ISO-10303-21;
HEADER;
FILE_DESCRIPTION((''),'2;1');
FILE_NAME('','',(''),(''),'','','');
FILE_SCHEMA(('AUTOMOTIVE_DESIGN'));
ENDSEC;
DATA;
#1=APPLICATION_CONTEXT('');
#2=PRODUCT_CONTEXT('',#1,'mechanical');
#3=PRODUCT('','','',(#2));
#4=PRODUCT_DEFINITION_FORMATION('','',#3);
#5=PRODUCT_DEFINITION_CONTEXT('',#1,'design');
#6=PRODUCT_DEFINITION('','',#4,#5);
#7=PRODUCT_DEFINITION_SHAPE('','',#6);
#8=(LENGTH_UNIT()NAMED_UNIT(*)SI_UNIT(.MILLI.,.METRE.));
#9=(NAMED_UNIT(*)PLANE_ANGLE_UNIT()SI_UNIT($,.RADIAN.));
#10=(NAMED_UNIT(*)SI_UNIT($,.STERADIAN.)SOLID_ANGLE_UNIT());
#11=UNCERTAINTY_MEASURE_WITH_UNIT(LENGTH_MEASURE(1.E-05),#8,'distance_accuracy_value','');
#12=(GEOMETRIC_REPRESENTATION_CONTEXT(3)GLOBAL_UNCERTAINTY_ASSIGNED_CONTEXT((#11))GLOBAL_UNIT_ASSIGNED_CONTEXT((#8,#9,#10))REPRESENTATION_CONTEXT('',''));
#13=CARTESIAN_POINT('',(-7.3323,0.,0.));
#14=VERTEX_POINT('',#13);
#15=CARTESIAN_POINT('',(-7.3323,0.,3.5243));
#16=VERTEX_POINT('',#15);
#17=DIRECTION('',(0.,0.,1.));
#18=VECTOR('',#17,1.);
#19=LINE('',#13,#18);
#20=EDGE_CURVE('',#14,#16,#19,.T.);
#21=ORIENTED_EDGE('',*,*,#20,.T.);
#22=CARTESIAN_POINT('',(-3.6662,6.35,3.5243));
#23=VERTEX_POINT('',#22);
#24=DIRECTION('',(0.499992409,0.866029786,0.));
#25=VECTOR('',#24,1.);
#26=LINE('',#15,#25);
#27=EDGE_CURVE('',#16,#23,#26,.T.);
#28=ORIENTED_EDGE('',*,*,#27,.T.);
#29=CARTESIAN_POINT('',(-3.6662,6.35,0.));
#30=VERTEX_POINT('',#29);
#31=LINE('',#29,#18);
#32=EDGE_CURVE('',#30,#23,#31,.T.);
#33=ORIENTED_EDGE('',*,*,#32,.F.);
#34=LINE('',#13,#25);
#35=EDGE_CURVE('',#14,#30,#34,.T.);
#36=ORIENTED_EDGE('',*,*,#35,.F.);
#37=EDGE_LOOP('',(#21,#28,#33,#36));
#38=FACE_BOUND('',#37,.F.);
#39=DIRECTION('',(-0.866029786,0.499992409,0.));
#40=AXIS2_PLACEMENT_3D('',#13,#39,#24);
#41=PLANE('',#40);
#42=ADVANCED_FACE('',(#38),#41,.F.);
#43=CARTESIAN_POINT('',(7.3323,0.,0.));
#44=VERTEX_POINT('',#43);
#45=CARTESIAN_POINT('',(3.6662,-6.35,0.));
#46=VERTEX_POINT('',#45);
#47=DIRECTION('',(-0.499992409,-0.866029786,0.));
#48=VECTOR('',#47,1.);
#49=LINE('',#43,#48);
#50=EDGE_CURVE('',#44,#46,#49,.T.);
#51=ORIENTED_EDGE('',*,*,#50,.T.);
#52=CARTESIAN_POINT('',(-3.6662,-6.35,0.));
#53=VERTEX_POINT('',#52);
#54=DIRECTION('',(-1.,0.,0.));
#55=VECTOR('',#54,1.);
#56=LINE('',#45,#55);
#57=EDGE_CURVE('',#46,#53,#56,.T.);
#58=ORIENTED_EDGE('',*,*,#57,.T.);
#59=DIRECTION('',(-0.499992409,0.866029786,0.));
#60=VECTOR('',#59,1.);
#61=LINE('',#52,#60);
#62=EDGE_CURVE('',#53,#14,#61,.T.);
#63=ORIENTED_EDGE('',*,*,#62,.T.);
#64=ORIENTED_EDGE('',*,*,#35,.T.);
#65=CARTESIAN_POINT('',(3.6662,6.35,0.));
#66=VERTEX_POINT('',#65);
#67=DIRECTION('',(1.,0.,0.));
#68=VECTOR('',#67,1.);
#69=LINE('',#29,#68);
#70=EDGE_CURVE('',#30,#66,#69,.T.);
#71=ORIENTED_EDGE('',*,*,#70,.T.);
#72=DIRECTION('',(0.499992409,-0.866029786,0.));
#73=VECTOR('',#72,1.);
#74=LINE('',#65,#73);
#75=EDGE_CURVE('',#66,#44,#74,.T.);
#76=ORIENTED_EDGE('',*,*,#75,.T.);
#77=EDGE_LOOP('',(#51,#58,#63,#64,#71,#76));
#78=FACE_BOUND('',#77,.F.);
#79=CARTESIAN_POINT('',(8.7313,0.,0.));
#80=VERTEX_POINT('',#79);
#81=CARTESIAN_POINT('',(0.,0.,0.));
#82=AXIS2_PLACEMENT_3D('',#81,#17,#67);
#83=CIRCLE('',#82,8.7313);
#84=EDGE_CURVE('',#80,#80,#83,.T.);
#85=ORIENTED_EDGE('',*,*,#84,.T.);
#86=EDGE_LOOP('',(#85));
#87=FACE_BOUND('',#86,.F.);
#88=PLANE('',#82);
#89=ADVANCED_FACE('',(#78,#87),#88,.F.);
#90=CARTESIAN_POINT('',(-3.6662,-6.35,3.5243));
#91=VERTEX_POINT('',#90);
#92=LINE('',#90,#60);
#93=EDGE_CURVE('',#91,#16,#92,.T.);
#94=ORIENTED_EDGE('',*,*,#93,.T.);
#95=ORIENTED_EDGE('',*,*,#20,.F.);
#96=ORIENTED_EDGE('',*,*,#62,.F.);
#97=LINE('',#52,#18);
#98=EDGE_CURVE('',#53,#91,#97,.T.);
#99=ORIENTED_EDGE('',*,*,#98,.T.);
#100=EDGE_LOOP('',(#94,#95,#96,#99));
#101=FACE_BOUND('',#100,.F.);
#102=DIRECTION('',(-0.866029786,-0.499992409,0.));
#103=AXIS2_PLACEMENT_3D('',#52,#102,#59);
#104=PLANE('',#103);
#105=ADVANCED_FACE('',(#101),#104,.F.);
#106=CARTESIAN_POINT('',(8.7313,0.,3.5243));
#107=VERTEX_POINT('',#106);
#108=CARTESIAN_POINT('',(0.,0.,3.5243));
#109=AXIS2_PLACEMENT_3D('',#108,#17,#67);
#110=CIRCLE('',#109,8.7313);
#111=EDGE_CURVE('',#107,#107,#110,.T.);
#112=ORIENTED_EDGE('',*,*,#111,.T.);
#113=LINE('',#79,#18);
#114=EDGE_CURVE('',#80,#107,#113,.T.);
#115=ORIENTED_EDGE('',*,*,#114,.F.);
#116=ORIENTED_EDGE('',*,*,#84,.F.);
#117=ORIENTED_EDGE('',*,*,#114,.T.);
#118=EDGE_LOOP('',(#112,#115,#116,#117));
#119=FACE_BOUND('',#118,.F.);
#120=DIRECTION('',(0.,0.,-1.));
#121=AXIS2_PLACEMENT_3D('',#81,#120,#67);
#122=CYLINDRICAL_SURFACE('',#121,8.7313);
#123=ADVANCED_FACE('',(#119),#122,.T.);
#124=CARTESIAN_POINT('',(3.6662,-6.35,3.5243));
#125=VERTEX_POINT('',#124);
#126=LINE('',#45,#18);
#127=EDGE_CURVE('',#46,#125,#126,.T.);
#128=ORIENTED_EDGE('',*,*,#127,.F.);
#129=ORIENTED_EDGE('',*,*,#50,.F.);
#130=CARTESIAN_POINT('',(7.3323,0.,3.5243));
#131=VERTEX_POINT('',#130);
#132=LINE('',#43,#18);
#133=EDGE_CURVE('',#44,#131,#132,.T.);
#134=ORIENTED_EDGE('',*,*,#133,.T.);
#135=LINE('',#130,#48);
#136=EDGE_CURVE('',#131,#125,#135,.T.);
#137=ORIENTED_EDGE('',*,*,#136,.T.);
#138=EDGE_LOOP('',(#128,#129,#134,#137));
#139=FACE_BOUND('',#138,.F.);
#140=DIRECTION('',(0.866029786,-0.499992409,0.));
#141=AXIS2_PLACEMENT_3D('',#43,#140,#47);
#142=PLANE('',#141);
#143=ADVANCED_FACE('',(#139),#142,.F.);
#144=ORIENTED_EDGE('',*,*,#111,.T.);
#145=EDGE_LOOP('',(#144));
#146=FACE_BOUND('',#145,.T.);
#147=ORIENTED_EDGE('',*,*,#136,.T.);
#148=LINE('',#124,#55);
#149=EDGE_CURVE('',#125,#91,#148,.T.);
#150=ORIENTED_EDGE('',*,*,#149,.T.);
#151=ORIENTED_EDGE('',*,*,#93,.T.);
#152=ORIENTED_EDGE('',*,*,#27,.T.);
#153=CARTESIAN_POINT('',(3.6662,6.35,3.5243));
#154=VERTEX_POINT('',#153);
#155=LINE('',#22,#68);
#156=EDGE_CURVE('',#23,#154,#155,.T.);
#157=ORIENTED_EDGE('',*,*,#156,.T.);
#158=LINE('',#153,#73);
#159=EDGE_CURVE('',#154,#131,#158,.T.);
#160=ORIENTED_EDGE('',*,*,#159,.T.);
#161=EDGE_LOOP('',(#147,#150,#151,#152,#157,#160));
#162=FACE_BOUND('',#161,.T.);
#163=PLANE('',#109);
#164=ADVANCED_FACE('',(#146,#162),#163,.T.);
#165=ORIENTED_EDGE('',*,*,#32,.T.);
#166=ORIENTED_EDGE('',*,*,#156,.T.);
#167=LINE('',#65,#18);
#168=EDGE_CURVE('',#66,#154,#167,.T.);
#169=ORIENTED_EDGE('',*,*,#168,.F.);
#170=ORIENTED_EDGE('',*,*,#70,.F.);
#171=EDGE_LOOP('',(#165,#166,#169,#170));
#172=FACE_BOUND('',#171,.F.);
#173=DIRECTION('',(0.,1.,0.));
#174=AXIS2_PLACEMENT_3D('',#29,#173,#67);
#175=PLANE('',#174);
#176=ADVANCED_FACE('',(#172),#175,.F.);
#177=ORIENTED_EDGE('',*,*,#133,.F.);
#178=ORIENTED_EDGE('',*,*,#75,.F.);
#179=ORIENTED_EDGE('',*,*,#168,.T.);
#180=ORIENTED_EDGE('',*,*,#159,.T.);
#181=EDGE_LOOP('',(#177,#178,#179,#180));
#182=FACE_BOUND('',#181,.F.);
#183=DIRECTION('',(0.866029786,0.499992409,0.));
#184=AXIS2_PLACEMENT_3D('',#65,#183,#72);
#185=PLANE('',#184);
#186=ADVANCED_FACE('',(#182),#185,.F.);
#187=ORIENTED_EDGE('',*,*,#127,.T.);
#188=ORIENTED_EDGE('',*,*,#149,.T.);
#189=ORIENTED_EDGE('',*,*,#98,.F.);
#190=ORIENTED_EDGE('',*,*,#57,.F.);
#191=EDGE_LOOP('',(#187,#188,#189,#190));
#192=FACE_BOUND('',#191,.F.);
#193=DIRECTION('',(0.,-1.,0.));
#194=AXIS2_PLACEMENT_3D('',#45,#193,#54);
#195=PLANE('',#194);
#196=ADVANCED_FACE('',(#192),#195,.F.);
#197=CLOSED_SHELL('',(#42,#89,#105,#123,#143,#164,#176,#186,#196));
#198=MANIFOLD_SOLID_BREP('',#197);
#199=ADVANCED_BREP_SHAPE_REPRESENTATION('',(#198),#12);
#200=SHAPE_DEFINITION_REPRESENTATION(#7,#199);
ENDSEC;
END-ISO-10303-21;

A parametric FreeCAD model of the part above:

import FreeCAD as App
import Part
import Sketcher
from FreeCAD import Vector
Q = App.Units.Quantity


def add_polygon(sketch, points):
    """Adds a closed chain of lines whose ends are joined by coincident constraints."""
    first, n = sketch.GeometryCount, len(points)
    for a, b in zip(points, points[1:] + points[:1]):
        sketch.addGeometry(Part.LineSegment(App.Vector(*a, 0), App.Vector(*b, 0)), False)
    for i in range(n):
        sketch.addConstraint(Sketcher.Constraint("Coincident", first + i, 2, first + (i + 1) % n, 1))

doc = App.newDocument("Part")
params = doc.addObject("Spreadsheet::Sheet", "Params")
for row, (alias, value) in enumerate([
    ("sketch1_diameter", "0.6875 in"),
    ("pad1_length", "3.5243 mm"),
], start=1):
    params.set(f"A{row}", alias)
    params.set(f"B{row}", "=" + value)
    params.setAlias(f"B{row}", alias)

body = doc.addObject("PartDesign::Body", "Body")

sketch1 = doc.addObject("Sketcher::SketchObject", "Sketch")
body.addObject(sketch1)
sketch1.AttachmentSupport = (doc.XY_Plane, [""])
sketch1.MapMode = "FlatFace"
sketch1.addGeometry(Part.Circle(Vector(0, 0, 0), Vector(0, 0, 1), 8.7313), False)
add_polygon(sketch1, [(-3.6662, -6.35), (-7.3323, 0), (-3.6662, 6.35), (3.6662, 6.35), (7.3323, 0), (3.6662, -6.35)])
sketch1.addConstraint([
    Sketcher.Constraint("Horizontal", 3),
    Sketcher.Constraint("Horizontal", 6),
    Sketcher.Constraint("Coincident", 0, 3, -1, 1),
    Sketcher.Constraint("Symmetric", 1, 2, 4, 2, -1, 1),
    Sketcher.Constraint("Symmetric", 2, 2, 5, 2, -1, 1),
    Sketcher.Constraint("PointOnObject", 1, 2, -1),
    Sketcher.Constraint("Parallel", 1, 4),
    Sketcher.Constraint("Vertical", 3, 2, 5, 2),
    Sketcher.Constraint("Diameter", 0, Q("0.6875 in")),
    Sketcher.Constraint("DistanceY", 5, 2, 3, 2, Q("0.5 in")),
    Sketcher.Constraint("Angle", 1, Q("119.9995 deg")),
    Sketcher.Constraint("DistanceX", 1, 2, 3, 2, Q("0.433 in")),
])
sketch1.setExpression("Constraints[14]", "Params.sketch1_diameter")
pad1 = doc.addObject("PartDesign::Pad", "Pad")
body.addObject(pad1)
pad1.Profile = sketch1
pad1.setExpression("Length", "Params.pad1_length")

doc.recompute()
